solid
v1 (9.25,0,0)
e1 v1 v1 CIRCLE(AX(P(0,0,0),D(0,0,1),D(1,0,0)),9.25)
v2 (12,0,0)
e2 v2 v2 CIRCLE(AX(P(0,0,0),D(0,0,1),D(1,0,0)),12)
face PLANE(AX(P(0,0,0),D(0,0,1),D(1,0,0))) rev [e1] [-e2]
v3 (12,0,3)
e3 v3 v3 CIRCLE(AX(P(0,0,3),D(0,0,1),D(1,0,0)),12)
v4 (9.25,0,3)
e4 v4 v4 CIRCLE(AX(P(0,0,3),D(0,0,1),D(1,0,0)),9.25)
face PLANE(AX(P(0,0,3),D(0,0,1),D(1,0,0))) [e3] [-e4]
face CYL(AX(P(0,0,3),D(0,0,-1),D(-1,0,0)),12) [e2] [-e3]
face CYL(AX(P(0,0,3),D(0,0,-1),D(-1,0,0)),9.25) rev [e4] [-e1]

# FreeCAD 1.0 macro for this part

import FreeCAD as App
import Part
import Sketcher

doc = App.newDocument("Part")
body = doc.addObject("PartDesign::Body", "Body")

sketch1 = doc.addObject("Sketcher::SketchObject", "Sketch")
body.addObject(sketch1)
sketch1.AttachmentSupport = (doc.XY_Plane, [""])
sketch1.MapMode = "FlatFace"
sketch1.addGeometry(Part.Circle(App.Vector(0, 0, 0), App.Vector(0, 0, 1), 12), False)
sketch1.addGeometry(Part.Circle(App.Vector(0, 0, 0), App.Vector(0, 0, 1), 9.25), False)
sketch1.addConstraint(Sketcher.Constraint("Coincident", 0, 3, -1, 1))
sketch1.addConstraint(Sketcher.Constraint("Coincident", 1, 3, -1, 1))
sketch1.addConstraint(Sketcher.Constraint("Diameter", 0, 24.0))
sketch1.addConstraint(Sketcher.Constraint("Diameter", 1, 18.5))
pad1 = doc.addObject("PartDesign::Pad", "Pad")
body.addObject(pad1)
pad1.Profile = sketch1
pad1.Length = 3

doc.recompute()
